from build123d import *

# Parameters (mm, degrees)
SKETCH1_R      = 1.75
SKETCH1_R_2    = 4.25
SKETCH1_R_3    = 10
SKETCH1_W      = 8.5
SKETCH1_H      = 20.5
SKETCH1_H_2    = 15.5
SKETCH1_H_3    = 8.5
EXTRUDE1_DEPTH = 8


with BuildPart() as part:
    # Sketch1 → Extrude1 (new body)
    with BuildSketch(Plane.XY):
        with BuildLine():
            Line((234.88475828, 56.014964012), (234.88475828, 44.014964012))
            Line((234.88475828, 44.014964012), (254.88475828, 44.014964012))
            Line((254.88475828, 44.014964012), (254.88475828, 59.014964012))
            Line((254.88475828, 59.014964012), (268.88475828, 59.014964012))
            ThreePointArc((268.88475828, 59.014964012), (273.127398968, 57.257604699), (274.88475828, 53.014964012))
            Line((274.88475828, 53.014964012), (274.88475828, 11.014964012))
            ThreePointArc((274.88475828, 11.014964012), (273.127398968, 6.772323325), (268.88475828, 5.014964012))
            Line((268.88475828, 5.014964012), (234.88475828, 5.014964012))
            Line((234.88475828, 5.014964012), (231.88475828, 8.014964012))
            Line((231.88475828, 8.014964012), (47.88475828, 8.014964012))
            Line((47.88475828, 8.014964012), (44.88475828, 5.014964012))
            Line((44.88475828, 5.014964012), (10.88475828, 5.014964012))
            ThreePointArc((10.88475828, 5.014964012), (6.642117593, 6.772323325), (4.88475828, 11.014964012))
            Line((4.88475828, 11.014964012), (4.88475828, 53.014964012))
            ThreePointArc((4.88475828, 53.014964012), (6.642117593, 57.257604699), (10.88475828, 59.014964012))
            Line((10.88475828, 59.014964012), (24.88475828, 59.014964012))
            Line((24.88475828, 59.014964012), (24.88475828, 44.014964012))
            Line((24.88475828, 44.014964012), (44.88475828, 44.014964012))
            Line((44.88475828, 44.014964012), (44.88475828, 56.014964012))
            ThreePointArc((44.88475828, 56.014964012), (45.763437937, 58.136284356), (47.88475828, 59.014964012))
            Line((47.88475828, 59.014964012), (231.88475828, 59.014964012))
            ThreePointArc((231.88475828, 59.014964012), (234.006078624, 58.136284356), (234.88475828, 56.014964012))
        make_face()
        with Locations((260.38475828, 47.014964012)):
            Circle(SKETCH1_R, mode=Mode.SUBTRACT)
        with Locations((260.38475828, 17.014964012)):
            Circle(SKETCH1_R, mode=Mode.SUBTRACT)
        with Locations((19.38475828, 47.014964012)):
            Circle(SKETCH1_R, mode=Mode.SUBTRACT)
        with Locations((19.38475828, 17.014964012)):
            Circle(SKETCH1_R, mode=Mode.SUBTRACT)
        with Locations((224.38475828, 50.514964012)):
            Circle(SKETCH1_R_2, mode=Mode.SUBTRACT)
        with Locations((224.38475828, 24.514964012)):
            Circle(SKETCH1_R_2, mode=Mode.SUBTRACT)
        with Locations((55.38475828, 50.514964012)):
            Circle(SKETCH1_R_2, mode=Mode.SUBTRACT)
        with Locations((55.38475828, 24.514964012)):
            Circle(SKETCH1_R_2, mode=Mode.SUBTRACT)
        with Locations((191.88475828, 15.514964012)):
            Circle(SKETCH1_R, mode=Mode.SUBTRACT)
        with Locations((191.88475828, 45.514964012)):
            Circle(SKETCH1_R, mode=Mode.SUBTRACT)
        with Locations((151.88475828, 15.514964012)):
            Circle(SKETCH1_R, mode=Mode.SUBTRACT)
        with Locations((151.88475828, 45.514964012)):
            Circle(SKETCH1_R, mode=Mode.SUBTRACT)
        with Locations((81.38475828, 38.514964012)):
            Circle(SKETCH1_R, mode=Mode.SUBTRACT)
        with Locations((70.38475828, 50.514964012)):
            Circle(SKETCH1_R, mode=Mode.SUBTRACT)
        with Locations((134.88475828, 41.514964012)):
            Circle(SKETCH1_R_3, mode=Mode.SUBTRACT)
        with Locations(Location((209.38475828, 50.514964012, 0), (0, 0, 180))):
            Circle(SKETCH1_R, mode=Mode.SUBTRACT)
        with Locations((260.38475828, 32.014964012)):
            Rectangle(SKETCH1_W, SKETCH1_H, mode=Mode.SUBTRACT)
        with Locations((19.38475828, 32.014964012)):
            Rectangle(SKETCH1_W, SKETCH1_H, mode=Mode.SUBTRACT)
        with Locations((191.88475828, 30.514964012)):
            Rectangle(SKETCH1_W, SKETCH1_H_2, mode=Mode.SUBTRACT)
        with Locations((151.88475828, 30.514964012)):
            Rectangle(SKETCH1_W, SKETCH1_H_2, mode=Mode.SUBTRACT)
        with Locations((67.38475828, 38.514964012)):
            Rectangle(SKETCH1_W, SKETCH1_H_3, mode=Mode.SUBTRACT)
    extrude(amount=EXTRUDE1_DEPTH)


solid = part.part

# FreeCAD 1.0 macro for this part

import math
import FreeCAD as App
import Part
import Sketcher
Q = App.Units.Quantity

doc = App.newDocument("Part")
body = doc.addObject("PartDesign::Body", "Body")

# Sketch on XY plane
sketch1 = doc.addObject("Sketcher::SketchObject", "Sketch")
body.addObject(sketch1)
sketch1.AttachmentSupport = (doc.XY_Plane, [""])
sketch1.MapMode = "FlatFace"
sketch1.addGeometry([
    Part.LineSegment(App.Vector(234.9, 44, 0), App.Vector(234.9, 56, 0)),  # 0
    Part.ArcOfCircle(Part.Circle(App.Vector(231.9, 56, 0), App.Vector(0, 0, 1), 3), math.radians(0), math.radians(90)),  # 1
    Part.LineSegment(App.Vector(231.9, 59, 0), App.Vector(47.9, 59, 0)),  # 2
    Part.ArcOfCircle(Part.Circle(App.Vector(47.9, 56, 0), App.Vector(0, 0, 1), 3), math.radians(90), math.radians(180)),  # 3
    Part.LineSegment(App.Vector(44.9, 56, 0), App.Vector(44.9, 44, 0)),  # 4
    Part.LineSegment(App.Vector(44.9, 44, 0), App.Vector(24.9, 44, 0)),  # 5
    Part.LineSegment(App.Vector(24.9, 44, 0), App.Vector(24.9, 59, 0)),  # 6
    Part.LineSegment(App.Vector(24.9, 59, 0), App.Vector(10.9, 59, 0)),  # 7
    Part.ArcOfCircle(Part.Circle(App.Vector(10.9, 53, 0), App.Vector(0, 0, 1), 6), math.radians(90), math.radians(180)),  # 8
    Part.LineSegment(App.Vector(4.9, 53, 0), App.Vector(4.9, 11, 0)),  # 9
    Part.ArcOfCircle(Part.Circle(App.Vector(10.9, 11, 0), App.Vector(0, 0, 1), 6), math.radians(180), math.radians(270)),  # 10
    Part.LineSegment(App.Vector(10.9, 5, 0), App.Vector(44.9, 5, 0)),  # 11
    Part.LineSegment(App.Vector(44.9, 5, 0), App.Vector(47.9, 8, 0)),  # 12
    Part.LineSegment(App.Vector(47.9, 8, 0), App.Vector(231.9, 8, 0)),  # 13
    Part.LineSegment(App.Vector(231.9, 8, 0), App.Vector(234.9, 5, 0)),  # 14
    Part.LineSegment(App.Vector(234.9, 5, 0), App.Vector(268.9, 5, 0)),  # 15
    Part.ArcOfCircle(Part.Circle(App.Vector(268.9, 11, 0), App.Vector(0, 0, 1), 6), math.radians(-90), math.radians(0)),  # 16
    Part.LineSegment(App.Vector(274.9, 11, 0), App.Vector(274.9, 53, 0)),  # 17
    Part.ArcOfCircle(Part.Circle(App.Vector(268.9, 53, 0), App.Vector(0, 0, 1), 6), math.radians(0), math.radians(90)),  # 18
    Part.LineSegment(App.Vector(268.9, 59, 0), App.Vector(254.9, 59, 0)),  # 19
    Part.LineSegment(App.Vector(254.9, 59, 0), App.Vector(254.9, 44, 0)),  # 20
    Part.LineSegment(App.Vector(254.9, 44, 0), App.Vector(234.9, 44, 0)),  # 21
    Part.Circle(App.Vector(260.4, 17, 0), App.Vector(0, 0, 1), 1.8),  # 22
    Part.Circle(App.Vector(191.9, 15.5, 0), App.Vector(0, 0, 1), 1.8),  # 23
    Part.Circle(App.Vector(151.9, 15.5, 0), App.Vector(0, 0, 1), 1.8),  # 24
    Part.Circle(App.Vector(224.4, 24.5, 0), App.Vector(0, 0, 1), 4.2),  # 25
    Part.LineSegment(App.Vector(256.1, 21.8, 0), App.Vector(256.1, 42.3, 0)),  # 26
    Part.LineSegment(App.Vector(256.1, 42.3, 0), App.Vector(264.6, 42.3, 0)),  # 27
    Part.LineSegment(App.Vector(264.6, 42.3, 0), App.Vector(264.6, 21.8, 0)),  # 28
    Part.LineSegment(App.Vector(264.6, 21.8, 0), App.Vector(256.1, 21.8, 0)),  # 29
    Part.LineSegment(App.Vector(187.6, 22.8, 0), App.Vector(187.6, 38.3, 0)),  # 30
    Part.LineSegment(App.Vector(187.6, 38.3, 0), App.Vector(196.1, 38.3, 0)),  # 31
    Part.LineSegment(App.Vector(196.1, 38.3, 0), App.Vector(196.1, 22.8, 0)),  # 32
    Part.LineSegment(App.Vector(196.1, 22.8, 0), App.Vector(187.6, 22.8, 0)),  # 33
    Part.LineSegment(App.Vector(147.6, 22.8, 0), App.Vector(147.6, 38.3, 0)),  # 34
    Part.LineSegment(App.Vector(147.6, 38.3, 0), App.Vector(156.1, 38.3, 0)),  # 35
    Part.LineSegment(App.Vector(156.1, 38.3, 0), App.Vector(156.1, 22.8, 0)),  # 36
    Part.LineSegment(App.Vector(156.1, 22.8, 0), App.Vector(147.6, 22.8, 0)),  # 37
    Part.Circle(App.Vector(19.4, 17, 0), App.Vector(0, 0, 1), 1.8),  # 38
    Part.Circle(App.Vector(55.4, 24.5, 0), App.Vector(0, 0, 1), 4.2),  # 39
    Part.LineSegment(App.Vector(15.1, 21.8, 0), App.Vector(15.1, 42.3, 0)),  # 40
    Part.LineSegment(App.Vector(15.1, 42.3, 0), App.Vector(23.6, 42.3, 0)),  # 41
    Part.LineSegment(App.Vector(23.6, 42.3, 0), App.Vector(23.6, 21.8, 0)),  # 42
    Part.LineSegment(App.Vector(23.6, 21.8, 0), App.Vector(15.1, 21.8, 0)),  # 43
    Part.Circle(App.Vector(260.4, 47, 0), App.Vector(0, 0, 1), 1.8),  # 44
    Part.Circle(App.Vector(224.4, 50.5, 0), App.Vector(0, 0, 1), 4.2),  # 45
    Part.Circle(App.Vector(209.4, 50.5, 0), App.Vector(0, 0, 1), 1.8),  # 46
    Part.Circle(App.Vector(191.9, 45.5, 0), App.Vector(0, 0, 1), 1.8),  # 47
    Part.Circle(App.Vector(151.9, 45.5, 0), App.Vector(0, 0, 1), 1.8),  # 48
    Part.Circle(App.Vector(81.4, 38.5, 0), App.Vector(0, 0, 1), 1.8),  # 49
    Part.Circle(App.Vector(134.9, 41.5, 0), App.Vector(0, 0, 1), 10),  # 50
    Part.LineSegment(App.Vector(63.1, 34.3, 0), App.Vector(63.1, 42.8, 0)),  # 51
    Part.LineSegment(App.Vector(63.1, 42.8, 0), App.Vector(71.6, 42.8, 0)),  # 52
    Part.LineSegment(App.Vector(71.6, 42.8, 0), App.Vector(71.6, 34.3, 0)),  # 53
    Part.LineSegment(App.Vector(71.6, 34.3, 0), App.Vector(63.1, 34.3, 0)),  # 54
    Part.Circle(App.Vector(19.4, 47, 0), App.Vector(0, 0, 1), 1.8),  # 55
    Part.Circle(App.Vector(70.4, 50.5, 0), App.Vector(0, 0, 1), 1.8),  # 56
    Part.Circle(App.Vector(55.4, 50.5, 0), App.Vector(0, 0, 1), 4.2),  # 57
], False)
sketch1.addConstraint([
    Sketcher.Constraint("Tangent", 0, 2, 1, 1),
    Sketcher.Constraint("Tangent", 1, 2, 2, 1),
    Sketcher.Constraint("Tangent", 2, 2, 3, 1),
    Sketcher.Constraint("Tangent", 3, 2, 4, 1),
    Sketcher.Constraint("Coincident", 4, 2, 5, 1),
    Sketcher.Constraint("Coincident", 5, 2, 6, 1),
    Sketcher.Constraint("Coincident", 6, 2, 7, 1),
    Sketcher.Constraint("Tangent", 7, 2, 8, 1),
    Sketcher.Constraint("Tangent", 8, 2, 9, 1),
    Sketcher.Constraint("Tangent", 9, 2, 10, 1),
    Sketcher.Constraint("Tangent", 10, 2, 11, 1),
    Sketcher.Constraint("Coincident", 11, 2, 12, 1),
    Sketcher.Constraint("Coincident", 12, 2, 13, 1),
    Sketcher.Constraint("Coincident", 13, 2, 14, 1),
    Sketcher.Constraint("Coincident", 14, 2, 15, 1),
    Sketcher.Constraint("Tangent", 15, 2, 16, 1),
    Sketcher.Constraint("Tangent", 16, 2, 17, 1),
    Sketcher.Constraint("Tangent", 17, 2, 18, 1),
    Sketcher.Constraint("Tangent", 18, 2, 19, 1),
    Sketcher.Constraint("Coincident", 19, 2, 20, 1),
    Sketcher.Constraint("Coincident", 20, 2, 21, 1),
    Sketcher.Constraint("Coincident", 21, 2, 0, 1),
    Sketcher.Constraint("Coincident", 26, 2, 27, 1),
    Sketcher.Constraint("Coincident", 27, 2, 28, 1),
    Sketcher.Constraint("Coincident", 28, 2, 29, 1),
    Sketcher.Constraint("Coincident", 29, 2, 26, 1),
    Sketcher.Constraint("Coincident", 30, 2, 31, 1),
    Sketcher.Constraint("Coincident", 31, 2, 32, 1),
    Sketcher.Constraint("Coincident", 32, 2, 33, 1),
    Sketcher.Constraint("Coincident", 33, 2, 30, 1),
    Sketcher.Constraint("Coincident", 34, 2, 35, 1),
    Sketcher.Constraint("Coincident", 35, 2, 36, 1),
    Sketcher.Constraint("Coincident", 36, 2, 37, 1),
    Sketcher.Constraint("Coincident", 37, 2, 34, 1),
    Sketcher.Constraint("Coincident", 40, 2, 41, 1),
    Sketcher.Constraint("Coincident", 41, 2, 42, 1),
    Sketcher.Constraint("Coincident", 42, 2, 43, 1),
    Sketcher.Constraint("Coincident", 43, 2, 40, 1),
    Sketcher.Constraint("Coincident", 51, 2, 52, 1),
    Sketcher.Constraint("Coincident", 52, 2, 53, 1),
    Sketcher.Constraint("Coincident", 53, 2, 54, 1),
    Sketcher.Constraint("Coincident", 54, 2, 51, 1),
    Sketcher.Constraint("Vertical", 0),
    Sketcher.Constraint("Horizontal", 2),
    Sketcher.Constraint("Vertical", 4),
    Sketcher.Constraint("Horizontal", 5),
    Sketcher.Constraint("Vertical", 6),
    Sketcher.Constraint("Horizontal", 7),
    Sketcher.Constraint("Vertical", 9),
    Sketcher.Constraint("Horizontal", 11),
    Sketcher.Constraint("Horizontal", 13),
    Sketcher.Constraint("Horizontal", 15),
    Sketcher.Constraint("Vertical", 17),
    Sketcher.Constraint("Horizontal", 19),
    Sketcher.Constraint("Vertical", 20),
    Sketcher.Constraint("Horizontal", 21),
    Sketcher.Constraint("Vertical", 26),
    Sketcher.Constraint("Horizontal", 27),
    Sketcher.Constraint("Vertical", 28),
    Sketcher.Constraint("Horizontal", 29),
    Sketcher.Constraint("Vertical", 30),
    Sketcher.Constraint("Horizontal", 31),
    Sketcher.Constraint("Vertical", 32),
    Sketcher.Constraint("Horizontal", 33),
    Sketcher.Constraint("Vertical", 34),
    Sketcher.Constraint("Horizontal", 35),
    Sketcher.Constraint("Vertical", 36),
    Sketcher.Constraint("Horizontal", 37),
    Sketcher.Constraint("Vertical", 40),
    Sketcher.Constraint("Horizontal", 41),
    Sketcher.Constraint("Vertical", 42),
    Sketcher.Constraint("Horizontal", 43),
    Sketcher.Constraint("Vertical", 51),
    Sketcher.Constraint("Horizontal", 52),
    Sketcher.Constraint("Vertical", 53),
    Sketcher.Constraint("Horizontal", 54),
    Sketcher.Constraint("Equal", 1, 3),
    Sketcher.Constraint("Equal", 8, 10),
    Sketcher.Constraint("Equal", 10, 16),
    Sketcher.Constraint("Equal", 16, 18),
    Sketcher.Constraint("Equal", 22, 23),
    Sketcher.Constraint("Equal", 23, 24),
    Sketcher.Constraint("Equal", 24, 38),
    Sketcher.Constraint("Equal", 25, 39),
    Sketcher.Constraint("Equal", 38, 44),
    Sketcher.Constraint("Equal", 39, 45),
    Sketcher.Constraint("Equal", 44, 46),
    Sketcher.Constraint("Equal", 46, 47),
    Sketcher.Constraint("Equal", 47, 48),
    Sketcher.Constraint("Equal", 48, 49),
    Sketcher.Constraint("Equal", 49, 55),
    Sketcher.Constraint("Equal", 55, 56),
    Sketcher.Constraint("Equal", 45, 57),
    Sketcher.Constraint("Perpendicular", 12, 14),
    Sketcher.Constraint("Horizontal", 10, 3, 16, 3),
    Sketcher.Constraint("Horizontal", 8, 3, 18, 3),
    Sketcher.Constraint("Horizontal", 23, 3, 24, 3),
    Sketcher.Constraint("Horizontal", 22, 3, 38, 3),
    Sketcher.Constraint("Horizontal", 25, 3, 39, 3),
    Sketcher.Constraint("Horizontal", 45, 3, 46, 3),
    Sketcher.Constraint("Horizontal", 47, 3, 48, 3),
    Sketcher.Constraint("Horizontal", 44, 3, 55, 3),
    Sketcher.Constraint("Horizontal", 46, 3, 56, 3),
    Sketcher.Constraint("Horizontal", 56, 3, 57, 3),
    Sketcher.Constraint("Horizontal", 2, 2, 6, 2),
    Sketcher.Constraint("Horizontal", 5, 2, 20, 2),
    Sketcher.Constraint("Horizontal", 31, 2, 34, 2),
    Sketcher.Constraint("Horizontal", 33, 2, 36, 2),
    Sketcher.Constraint("Horizontal", 27, 2, 40, 2),
    Sketcher.Constraint("Horizontal", 29, 2, 42, 2),
    Sketcher.Constraint("Vertical", 22, 3, 44, 3),
    Sketcher.Constraint("Vertical", 25, 3, 45, 3),
    Sketcher.Constraint("Vertical", 23, 3, 47, 3),
    Sketcher.Constraint("Vertical", 24, 3, 48, 3),
    Sketcher.Constraint("Vertical", 38, 3, 55, 3),
    Sketcher.Constraint("Vertical", 39, 3, 57, 3),
    Sketcher.Constraint("Vertical", 4, 2, 11, 2),
    Sketcher.Constraint("Vertical", 2, 2, 12, 2),
    Sketcher.Constraint("Vertical", 1, 2, 13, 2),
    Sketcher.Constraint("Vertical", 0, 2, 14, 2),
    Sketcher.Constraint("Equal", 11, 15),
    Sketcher.Constraint("Equal", 7, 19),
    Sketcher.Constraint("Equal", 29, 31),
    Sketcher.Constraint("Equal", 33, 35),
    Sketcher.Constraint("Equal", 37, 41),
    Sketcher.Constraint("Equal", 43, 52),
    Sketcher.Constraint("Equal", 54, 51),
    Sketcher.Constraint("Diameter", 50, Q("20 mm")),
    Sketcher.Constraint("Radius", 1, Q("3 mm")),
    Sketcher.Constraint("Radius", 8, Q("6 mm")),
    Sketcher.Constraint("Diameter", 22, Q("3.5 mm")),
    Sketcher.Constraint("Diameter", 25, Q("8.5 mm")),
    Sketcher.Constraint("DistanceX", 2, 2, 2, 1, Q("184 mm")),
    Sketcher.Constraint("DistanceX", 5, 2, 5, 1, Q("20 mm")),
    Sketcher.Constraint("DistanceX", 7, 2, 7, 1, Q("14 mm")),
    Sketcher.Constraint("DistanceY", 0, 1, 0, 2, Q("12 mm")),
    Sketcher.Constraint("DistanceY", 9, 2, 9, 1, Q("42 mm")),
    Sketcher.Constraint("DistanceX", 27, 1, 27, 2, Q("8.5 mm")),
    Sketcher.Constraint("DistanceY", 26, 1, 26, 2, Q("20.5 mm")),
    Sketcher.Constraint("DistanceY", 30, 1, 30, 2, Q("15.5 mm")),
    Sketcher.Constraint("DistanceX", -1, 1, 1, 3, Q("231.884758 mm")),
    Sketcher.Constraint("DistanceX", -1, 1, 22, 3, Q("260.384758 mm")),
    Sketcher.Constraint("DistanceX", -1, 1, 23, 3, Q("191.884758 mm")),
    Sketcher.Constraint("DistanceX", -1, 1, 24, 3, Q("151.884758 mm")),
    Sketcher.Constraint("DistanceX", -1, 1, 25, 3, Q("224.384758 mm")),
    Sketcher.Constraint("DistanceX", -1, 1, 38, 3, Q("19.384758 mm")),
    Sketcher.Constraint("DistanceX", -1, 1, 39, 3, Q("55.384758 mm")),
    Sketcher.Constraint("DistanceX", -1, 1, 46, 3, Q("209.384758 mm")),
    Sketcher.Constraint("DistanceX", -1, 1, 49, 3, Q("81.384758 mm")),
    Sketcher.Constraint("DistanceX", -1, 1, 50, 3, Q("134.884758 mm")),
    Sketcher.Constraint("DistanceX", -1, 1, 56, 3, Q("70.384758 mm")),
    Sketcher.Constraint("DistanceX", -1, 1, 26, 2, Q("256.134758 mm")),
    Sketcher.Constraint("DistanceX", -1, 1, 30, 2, Q("187.634758 mm")),
    Sketcher.Constraint("DistanceX", -1, 1, 34, 2, Q("147.634758 mm")),
    Sketcher.Constraint("DistanceX", -1, 1, 40, 2, Q("15.134758 mm")),
    Sketcher.Constraint("DistanceX", -1, 1, 51, 2, Q("63.134758 mm")),
    Sketcher.Constraint("DistanceY", -1, 1, 1, 3, Q("56.014964 mm")),
    Sketcher.Constraint("DistanceY", -1, 1, 22, 3, Q("17.014964 mm")),
    Sketcher.Constraint("DistanceY", -1, 1, 23, 3, Q("15.514964 mm")),
    Sketcher.Constraint("DistanceY", -1, 1, 25, 3, Q("24.514964 mm")),
    Sketcher.Constraint("DistanceY", -1, 1, 44, 3, Q("47.014964 mm")),
    Sketcher.Constraint("DistanceY", -1, 1, 45, 3, Q("50.514964 mm")),
    Sketcher.Constraint("DistanceY", -1, 1, 47, 3, Q("45.514964 mm")),
    Sketcher.Constraint("DistanceY", -1, 1, 49, 3, Q("38.514964 mm")),
    Sketcher.Constraint("DistanceY", -1, 1, 50, 3, Q("41.514964 mm")),
    Sketcher.Constraint("DistanceY", -1, 1, 26, 2, Q("42.264964 mm")),
    Sketcher.Constraint("DistanceY", -1, 1, 30, 2, Q("38.264964 mm")),
    Sketcher.Constraint("DistanceY", -1, 1, 51, 2, Q("42.764964 mm")),
])
pad1 = doc.addObject("PartDesign::Pad", "Pad")
body.addObject(pad1)
pad1.Profile = sketch1
pad1.Length = 8

doc.recompute()
